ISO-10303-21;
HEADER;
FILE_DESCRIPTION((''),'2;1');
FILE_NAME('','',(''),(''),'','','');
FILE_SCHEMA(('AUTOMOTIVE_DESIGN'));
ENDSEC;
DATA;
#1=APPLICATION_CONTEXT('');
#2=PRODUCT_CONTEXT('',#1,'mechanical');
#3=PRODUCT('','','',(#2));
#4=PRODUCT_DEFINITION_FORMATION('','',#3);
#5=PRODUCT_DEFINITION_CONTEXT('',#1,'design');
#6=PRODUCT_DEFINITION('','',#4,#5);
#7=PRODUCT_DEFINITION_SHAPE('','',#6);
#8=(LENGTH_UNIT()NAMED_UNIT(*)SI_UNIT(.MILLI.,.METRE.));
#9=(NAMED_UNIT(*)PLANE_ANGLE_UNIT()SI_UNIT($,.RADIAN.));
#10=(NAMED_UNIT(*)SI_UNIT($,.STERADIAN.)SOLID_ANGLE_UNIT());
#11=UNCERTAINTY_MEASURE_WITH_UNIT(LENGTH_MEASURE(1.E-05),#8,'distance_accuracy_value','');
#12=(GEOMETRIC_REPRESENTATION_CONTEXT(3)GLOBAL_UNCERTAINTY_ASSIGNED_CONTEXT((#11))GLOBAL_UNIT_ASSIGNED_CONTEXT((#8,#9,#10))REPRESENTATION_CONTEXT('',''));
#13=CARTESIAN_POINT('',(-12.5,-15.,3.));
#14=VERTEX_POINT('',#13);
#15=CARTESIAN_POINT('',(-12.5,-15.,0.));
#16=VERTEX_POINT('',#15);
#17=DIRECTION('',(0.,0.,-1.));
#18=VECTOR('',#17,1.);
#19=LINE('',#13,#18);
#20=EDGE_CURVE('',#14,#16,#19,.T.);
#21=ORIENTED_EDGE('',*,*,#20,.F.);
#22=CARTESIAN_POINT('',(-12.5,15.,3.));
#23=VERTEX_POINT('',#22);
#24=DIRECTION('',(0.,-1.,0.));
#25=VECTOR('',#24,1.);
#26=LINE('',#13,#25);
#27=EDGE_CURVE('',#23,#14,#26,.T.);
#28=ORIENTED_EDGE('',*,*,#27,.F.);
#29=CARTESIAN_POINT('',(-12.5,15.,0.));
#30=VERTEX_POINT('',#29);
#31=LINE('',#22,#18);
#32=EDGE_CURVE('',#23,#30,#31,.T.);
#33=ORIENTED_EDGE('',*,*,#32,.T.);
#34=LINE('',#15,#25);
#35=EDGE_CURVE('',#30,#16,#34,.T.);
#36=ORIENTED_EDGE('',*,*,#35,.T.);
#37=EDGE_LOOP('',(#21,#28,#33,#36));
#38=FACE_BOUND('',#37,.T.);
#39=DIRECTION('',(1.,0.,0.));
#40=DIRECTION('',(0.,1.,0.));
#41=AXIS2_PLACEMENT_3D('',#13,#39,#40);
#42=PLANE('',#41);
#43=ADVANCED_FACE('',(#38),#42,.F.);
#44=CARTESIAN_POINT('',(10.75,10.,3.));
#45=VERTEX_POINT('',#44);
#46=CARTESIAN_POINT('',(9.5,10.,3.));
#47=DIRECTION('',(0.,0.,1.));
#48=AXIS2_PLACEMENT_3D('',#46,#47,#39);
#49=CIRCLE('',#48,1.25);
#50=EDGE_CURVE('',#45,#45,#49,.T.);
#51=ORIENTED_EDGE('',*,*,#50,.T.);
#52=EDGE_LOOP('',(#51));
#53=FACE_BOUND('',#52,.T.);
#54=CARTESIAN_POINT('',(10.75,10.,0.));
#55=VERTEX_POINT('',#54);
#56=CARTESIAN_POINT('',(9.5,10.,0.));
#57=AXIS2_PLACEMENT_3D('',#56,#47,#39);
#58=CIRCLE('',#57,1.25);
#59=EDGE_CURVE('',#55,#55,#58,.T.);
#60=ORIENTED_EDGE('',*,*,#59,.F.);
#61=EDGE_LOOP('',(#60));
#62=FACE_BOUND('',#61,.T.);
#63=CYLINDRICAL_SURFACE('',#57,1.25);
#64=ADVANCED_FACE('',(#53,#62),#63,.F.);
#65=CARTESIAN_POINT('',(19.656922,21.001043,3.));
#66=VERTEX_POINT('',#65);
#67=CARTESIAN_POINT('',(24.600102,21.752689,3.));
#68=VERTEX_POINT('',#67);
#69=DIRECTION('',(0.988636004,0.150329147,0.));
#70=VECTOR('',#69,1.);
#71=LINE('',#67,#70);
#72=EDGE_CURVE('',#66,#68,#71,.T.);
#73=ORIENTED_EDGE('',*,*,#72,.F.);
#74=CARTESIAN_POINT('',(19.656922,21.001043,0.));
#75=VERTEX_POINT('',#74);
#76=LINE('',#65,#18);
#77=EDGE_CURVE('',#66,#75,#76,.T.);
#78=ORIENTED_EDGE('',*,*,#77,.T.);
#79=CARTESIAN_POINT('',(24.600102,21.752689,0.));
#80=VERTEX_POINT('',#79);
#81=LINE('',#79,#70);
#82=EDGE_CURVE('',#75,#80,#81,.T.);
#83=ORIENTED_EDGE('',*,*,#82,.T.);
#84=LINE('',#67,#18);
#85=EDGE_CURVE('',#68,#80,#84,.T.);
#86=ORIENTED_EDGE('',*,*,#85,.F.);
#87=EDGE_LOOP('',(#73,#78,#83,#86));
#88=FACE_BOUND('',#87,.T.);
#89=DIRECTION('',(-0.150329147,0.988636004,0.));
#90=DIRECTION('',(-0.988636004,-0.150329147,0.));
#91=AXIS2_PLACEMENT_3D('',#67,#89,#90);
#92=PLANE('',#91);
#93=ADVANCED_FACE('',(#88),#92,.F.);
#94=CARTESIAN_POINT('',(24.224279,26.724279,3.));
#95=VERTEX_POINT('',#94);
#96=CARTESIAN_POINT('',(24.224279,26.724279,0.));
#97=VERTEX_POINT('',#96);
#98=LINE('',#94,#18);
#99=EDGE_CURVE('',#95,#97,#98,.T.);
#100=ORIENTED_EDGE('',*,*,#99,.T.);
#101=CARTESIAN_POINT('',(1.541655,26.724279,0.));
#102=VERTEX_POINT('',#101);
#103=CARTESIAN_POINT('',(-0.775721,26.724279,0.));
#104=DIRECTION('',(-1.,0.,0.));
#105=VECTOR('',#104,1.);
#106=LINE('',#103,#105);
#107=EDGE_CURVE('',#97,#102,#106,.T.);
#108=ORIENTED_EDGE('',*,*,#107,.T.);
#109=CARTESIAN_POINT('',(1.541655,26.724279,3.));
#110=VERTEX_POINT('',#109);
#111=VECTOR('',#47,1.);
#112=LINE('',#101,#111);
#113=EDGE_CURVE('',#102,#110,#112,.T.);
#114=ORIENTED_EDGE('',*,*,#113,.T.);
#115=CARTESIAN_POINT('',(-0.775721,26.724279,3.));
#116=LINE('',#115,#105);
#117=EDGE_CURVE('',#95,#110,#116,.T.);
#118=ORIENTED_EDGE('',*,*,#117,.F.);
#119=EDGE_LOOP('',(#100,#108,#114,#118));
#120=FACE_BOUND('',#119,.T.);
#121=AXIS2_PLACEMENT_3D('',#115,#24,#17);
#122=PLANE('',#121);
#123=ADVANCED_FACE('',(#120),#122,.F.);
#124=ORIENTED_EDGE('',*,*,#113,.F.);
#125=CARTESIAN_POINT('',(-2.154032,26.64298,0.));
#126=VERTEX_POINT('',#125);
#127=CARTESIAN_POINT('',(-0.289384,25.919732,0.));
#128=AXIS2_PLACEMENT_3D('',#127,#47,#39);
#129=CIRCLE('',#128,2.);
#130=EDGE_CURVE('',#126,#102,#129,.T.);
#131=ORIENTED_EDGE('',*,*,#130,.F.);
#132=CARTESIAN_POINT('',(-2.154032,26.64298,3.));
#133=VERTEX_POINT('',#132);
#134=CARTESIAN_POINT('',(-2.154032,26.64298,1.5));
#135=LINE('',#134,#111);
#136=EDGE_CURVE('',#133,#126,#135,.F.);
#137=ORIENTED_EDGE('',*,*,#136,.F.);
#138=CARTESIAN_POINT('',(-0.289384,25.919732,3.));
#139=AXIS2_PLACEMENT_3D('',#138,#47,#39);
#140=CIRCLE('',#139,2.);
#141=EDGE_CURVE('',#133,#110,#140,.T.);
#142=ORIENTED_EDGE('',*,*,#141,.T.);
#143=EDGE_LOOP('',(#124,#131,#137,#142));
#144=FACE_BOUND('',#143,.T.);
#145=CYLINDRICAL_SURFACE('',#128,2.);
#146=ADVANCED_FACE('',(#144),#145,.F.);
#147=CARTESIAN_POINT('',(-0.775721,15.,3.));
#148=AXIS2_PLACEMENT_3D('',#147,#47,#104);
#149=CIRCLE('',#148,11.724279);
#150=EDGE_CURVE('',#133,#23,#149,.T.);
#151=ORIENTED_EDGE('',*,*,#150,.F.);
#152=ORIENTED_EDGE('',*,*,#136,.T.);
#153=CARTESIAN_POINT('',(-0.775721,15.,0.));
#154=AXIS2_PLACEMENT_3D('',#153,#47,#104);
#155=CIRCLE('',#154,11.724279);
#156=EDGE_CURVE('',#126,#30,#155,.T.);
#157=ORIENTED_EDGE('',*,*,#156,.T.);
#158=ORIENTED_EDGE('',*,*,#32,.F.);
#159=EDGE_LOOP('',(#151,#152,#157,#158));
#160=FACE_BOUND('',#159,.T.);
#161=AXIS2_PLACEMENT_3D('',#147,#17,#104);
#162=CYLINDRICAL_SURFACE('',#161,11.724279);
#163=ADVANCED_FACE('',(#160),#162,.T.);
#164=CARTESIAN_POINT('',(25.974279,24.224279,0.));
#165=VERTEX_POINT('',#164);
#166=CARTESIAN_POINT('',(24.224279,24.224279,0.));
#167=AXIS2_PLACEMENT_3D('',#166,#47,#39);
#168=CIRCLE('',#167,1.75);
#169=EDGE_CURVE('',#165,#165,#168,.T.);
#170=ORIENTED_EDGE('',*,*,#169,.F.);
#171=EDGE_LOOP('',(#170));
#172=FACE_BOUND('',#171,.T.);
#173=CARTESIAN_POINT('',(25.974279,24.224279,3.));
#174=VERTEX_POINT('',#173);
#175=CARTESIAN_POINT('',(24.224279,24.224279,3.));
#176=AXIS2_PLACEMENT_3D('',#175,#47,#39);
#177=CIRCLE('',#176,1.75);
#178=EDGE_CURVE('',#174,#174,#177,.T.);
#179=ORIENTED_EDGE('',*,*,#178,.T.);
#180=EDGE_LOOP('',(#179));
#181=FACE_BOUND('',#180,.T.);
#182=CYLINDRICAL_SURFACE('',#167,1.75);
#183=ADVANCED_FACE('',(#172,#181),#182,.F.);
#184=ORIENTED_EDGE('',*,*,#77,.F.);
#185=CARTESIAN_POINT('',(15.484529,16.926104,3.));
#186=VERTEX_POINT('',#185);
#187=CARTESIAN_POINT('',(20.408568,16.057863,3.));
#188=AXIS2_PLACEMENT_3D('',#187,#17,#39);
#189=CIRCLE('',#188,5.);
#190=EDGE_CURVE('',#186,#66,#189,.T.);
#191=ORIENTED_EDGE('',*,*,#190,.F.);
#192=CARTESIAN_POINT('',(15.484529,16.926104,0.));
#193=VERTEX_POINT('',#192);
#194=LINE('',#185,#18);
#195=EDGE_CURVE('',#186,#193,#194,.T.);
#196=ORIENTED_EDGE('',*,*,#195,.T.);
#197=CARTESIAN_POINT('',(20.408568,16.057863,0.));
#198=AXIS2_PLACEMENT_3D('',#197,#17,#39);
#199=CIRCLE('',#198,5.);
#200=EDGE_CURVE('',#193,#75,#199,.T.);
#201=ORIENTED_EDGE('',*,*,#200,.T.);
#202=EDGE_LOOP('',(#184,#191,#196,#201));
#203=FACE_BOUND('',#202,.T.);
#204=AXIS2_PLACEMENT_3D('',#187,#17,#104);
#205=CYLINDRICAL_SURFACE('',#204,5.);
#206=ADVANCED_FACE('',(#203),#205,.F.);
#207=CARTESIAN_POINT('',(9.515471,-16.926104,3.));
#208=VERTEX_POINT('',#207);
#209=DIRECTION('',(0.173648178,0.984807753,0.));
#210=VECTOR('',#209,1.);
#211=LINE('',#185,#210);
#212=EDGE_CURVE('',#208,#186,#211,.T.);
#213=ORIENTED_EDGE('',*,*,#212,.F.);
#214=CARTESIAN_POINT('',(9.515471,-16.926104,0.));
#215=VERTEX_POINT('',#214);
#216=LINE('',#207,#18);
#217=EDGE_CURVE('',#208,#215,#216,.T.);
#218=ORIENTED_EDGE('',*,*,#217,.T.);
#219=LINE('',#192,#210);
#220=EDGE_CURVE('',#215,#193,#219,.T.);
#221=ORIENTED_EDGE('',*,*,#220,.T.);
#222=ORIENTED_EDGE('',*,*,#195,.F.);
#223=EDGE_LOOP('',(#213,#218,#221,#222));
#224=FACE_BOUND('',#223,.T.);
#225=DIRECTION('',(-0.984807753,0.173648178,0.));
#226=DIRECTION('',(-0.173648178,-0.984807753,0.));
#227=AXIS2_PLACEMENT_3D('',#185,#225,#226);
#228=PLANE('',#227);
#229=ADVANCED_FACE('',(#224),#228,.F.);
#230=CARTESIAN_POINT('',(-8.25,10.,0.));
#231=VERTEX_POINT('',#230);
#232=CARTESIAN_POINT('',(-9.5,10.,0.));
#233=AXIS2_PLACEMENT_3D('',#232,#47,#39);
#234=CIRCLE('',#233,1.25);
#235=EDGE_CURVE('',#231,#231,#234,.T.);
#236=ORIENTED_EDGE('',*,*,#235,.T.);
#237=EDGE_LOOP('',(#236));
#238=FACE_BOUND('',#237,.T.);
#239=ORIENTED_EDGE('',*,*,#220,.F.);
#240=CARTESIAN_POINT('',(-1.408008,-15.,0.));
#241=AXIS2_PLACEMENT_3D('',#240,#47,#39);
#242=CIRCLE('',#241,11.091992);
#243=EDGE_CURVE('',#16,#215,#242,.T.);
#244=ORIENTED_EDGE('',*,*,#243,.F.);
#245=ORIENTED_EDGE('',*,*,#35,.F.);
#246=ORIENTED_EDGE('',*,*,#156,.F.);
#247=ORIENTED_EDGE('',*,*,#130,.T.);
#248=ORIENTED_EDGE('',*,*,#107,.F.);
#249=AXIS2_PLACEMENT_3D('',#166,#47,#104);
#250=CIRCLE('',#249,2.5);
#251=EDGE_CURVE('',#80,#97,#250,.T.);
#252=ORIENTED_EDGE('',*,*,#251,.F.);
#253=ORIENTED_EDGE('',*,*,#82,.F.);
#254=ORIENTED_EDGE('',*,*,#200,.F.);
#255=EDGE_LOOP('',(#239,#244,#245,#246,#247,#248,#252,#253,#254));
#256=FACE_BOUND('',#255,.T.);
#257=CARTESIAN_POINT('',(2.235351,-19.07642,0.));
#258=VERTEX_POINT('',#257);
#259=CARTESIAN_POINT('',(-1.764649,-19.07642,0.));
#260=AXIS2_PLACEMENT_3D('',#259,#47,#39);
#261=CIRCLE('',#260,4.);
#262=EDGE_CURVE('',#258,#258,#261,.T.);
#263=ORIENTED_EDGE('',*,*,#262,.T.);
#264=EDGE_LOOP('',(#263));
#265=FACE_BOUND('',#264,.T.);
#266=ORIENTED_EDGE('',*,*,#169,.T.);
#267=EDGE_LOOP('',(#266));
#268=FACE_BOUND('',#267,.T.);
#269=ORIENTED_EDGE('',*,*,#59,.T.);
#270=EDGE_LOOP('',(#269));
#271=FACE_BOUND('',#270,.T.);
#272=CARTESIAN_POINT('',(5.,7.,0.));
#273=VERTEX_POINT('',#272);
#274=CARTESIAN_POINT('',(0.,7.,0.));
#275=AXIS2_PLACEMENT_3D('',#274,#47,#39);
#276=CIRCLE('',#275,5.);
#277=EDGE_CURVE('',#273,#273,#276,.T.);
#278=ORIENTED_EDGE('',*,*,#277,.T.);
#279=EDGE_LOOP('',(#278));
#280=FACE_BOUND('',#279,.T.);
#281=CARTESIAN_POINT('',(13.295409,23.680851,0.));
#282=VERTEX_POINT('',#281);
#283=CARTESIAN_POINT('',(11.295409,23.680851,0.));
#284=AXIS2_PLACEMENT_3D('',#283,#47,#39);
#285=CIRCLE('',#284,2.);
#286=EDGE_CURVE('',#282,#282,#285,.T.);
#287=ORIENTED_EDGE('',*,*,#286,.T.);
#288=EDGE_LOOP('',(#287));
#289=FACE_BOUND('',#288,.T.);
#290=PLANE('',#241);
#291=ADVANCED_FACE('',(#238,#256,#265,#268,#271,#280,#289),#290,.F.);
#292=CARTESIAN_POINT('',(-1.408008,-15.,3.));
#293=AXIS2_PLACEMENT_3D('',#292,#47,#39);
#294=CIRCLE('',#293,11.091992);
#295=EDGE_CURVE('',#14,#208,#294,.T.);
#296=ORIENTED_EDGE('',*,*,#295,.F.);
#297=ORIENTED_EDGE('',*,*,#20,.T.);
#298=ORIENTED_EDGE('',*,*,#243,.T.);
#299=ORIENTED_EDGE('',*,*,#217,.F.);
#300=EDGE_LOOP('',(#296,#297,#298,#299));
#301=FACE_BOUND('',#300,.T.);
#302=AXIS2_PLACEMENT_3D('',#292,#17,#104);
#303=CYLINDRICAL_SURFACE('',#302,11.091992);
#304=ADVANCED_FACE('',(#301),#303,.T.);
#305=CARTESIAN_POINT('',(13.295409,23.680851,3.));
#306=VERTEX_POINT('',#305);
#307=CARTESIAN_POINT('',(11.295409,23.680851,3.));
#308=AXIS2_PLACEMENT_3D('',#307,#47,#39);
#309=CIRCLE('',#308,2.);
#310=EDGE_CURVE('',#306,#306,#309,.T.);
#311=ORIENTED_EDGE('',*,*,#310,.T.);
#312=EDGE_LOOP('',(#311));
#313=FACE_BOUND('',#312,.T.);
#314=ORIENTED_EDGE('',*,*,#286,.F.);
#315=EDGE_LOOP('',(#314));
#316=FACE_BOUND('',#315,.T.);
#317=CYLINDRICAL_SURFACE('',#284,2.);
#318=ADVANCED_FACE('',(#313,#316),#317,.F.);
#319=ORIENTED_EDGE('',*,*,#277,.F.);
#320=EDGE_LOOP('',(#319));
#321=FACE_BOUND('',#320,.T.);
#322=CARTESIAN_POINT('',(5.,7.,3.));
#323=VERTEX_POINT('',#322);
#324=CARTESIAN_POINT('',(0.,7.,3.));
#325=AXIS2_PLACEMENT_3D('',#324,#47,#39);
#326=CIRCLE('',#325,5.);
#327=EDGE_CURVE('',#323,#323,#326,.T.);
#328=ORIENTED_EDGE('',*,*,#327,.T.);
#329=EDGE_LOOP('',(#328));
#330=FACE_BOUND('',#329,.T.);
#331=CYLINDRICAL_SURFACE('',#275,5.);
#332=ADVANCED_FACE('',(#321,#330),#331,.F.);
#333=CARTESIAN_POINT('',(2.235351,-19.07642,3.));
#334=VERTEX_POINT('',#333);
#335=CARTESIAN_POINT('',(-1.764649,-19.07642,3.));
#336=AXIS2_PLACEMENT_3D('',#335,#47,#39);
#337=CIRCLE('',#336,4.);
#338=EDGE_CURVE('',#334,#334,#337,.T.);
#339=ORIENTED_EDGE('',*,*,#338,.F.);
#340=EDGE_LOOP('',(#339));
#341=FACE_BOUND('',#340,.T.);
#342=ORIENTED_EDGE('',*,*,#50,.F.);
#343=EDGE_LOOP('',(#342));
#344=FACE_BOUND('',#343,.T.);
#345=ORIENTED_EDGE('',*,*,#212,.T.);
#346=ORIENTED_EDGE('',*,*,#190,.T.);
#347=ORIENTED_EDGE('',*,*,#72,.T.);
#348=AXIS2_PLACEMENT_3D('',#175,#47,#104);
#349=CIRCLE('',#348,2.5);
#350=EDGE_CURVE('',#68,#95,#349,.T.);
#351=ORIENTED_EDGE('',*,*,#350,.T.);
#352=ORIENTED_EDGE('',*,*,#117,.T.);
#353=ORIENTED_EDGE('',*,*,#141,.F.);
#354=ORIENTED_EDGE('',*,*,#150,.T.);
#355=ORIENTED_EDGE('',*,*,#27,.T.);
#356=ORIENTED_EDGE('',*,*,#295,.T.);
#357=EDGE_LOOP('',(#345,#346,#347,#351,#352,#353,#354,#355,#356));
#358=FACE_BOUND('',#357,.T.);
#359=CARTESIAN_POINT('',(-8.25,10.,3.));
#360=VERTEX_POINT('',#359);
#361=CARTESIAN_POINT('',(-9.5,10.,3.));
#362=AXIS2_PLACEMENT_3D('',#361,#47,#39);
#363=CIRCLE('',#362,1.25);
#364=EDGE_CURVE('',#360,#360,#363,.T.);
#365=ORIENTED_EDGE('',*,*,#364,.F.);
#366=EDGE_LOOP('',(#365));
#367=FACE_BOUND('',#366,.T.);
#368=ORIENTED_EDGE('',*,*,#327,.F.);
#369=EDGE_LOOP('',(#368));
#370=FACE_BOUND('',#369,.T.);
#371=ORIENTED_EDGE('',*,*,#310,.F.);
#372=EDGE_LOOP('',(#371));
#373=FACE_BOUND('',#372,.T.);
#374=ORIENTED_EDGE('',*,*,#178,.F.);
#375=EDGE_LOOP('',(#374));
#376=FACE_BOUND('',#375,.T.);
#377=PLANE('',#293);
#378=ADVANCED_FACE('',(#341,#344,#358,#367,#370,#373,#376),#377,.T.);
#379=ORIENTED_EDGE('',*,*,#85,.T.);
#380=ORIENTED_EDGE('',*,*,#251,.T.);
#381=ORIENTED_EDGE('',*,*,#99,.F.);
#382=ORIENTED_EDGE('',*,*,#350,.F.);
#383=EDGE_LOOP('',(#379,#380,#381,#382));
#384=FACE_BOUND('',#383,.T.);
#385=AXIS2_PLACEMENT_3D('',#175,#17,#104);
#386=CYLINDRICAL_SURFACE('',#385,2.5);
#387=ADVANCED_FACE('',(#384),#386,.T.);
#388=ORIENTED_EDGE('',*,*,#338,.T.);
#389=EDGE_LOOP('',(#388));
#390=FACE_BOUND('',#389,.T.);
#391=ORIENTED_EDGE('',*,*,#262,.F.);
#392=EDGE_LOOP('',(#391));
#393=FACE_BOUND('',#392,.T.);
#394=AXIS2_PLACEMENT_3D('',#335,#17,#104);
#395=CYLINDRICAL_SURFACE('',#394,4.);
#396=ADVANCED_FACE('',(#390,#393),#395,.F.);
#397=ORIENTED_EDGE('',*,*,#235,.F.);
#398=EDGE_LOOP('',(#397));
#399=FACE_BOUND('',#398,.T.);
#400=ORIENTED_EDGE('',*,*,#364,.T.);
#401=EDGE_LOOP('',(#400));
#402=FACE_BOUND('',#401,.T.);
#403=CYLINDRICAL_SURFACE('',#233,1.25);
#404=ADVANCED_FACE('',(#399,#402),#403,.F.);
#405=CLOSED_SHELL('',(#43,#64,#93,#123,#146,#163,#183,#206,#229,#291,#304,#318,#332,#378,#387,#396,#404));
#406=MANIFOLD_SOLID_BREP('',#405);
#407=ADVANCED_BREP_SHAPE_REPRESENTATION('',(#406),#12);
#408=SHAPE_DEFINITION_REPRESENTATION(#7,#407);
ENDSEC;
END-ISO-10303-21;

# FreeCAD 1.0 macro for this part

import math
import FreeCAD as App
import Part
import Sketcher

V = App.Vector
Q = App.Units.Quantity

doc = App.newDocument("Part")
params = doc.addObject("Spreadsheet::Sheet", "Params")
for row, (alias, value) in enumerate([
    ("sketch1_diameter", "8 mm"),
    ("sketch1_radius", "5 mm"),
    ("sketch1_radius2", "2.5 mm"),
    ("sketch1_width", "25 mm"),
    ("sketch1_height", "30 mm"),
    ("pad1_length", "3 mm"),
    ("sketch2_diameter", "10 mm"),
    ("sketch2_diameter2", "2.5 mm"),
    ("sketch3_diameter", "3.5 mm"),
    ("sketch4_diameter", "4 mm"),
], start=1):
    params.set(f"A{row}", alias)
    params.set(f"B{row}", "=" + value)
    params.setAlias(f"B{row}", alias)

body = doc.addObject("PartDesign::Body", "Body")

sketch1 = doc.addObject("Sketcher::SketchObject", "Sketch")
body.addObject(sketch1)
sketch1.AttachmentSupport = (doc.XY_Plane, [""])
sketch1.MapMode = "FlatFace"
sketch1.addGeometry([
    Part.LineSegment(V(-12.5, 15, 0), V(-12.5, -15, 0)),
    Part.ArcOfCircle(Part.Circle(V(-1.408008, -15, 0), V(0, 0, 1), 11.091992), math.radians(180), math.radians(350)),
    Part.LineSegment(V(9.515471, -16.926104, 0), V(15.484529, 16.926104, 0)),
    Part.ArcOfCircle(Part.Circle(V(20.408568, 16.057863, 0), V(0, 0, 1), 5), math.radians(98.646002), math.radians(170)),
    Part.LineSegment(V(19.656922, 21.001043, 0), V(24.600102, 21.752689, 0)),
    Part.ArcOfCircle(Part.Circle(V(24.224279, 24.224279, 0), V(0, 0, 1), 2.5), math.radians(-81.353998), math.radians(90)),
    Part.LineSegment(V(24.224279, 26.724279, 0), V(-0.775721, 26.724279, 0)),
    Part.ArcOfCircle(Part.Circle(V(-0.775721, 15, 0), V(0, 0, 1), 11.724279), math.radians(90), math.radians(180)),
    Part.Circle(V(-1.764649, -19.07642, 0), V(0, 0, 1), 4),
], False)
sketch1.addConstraint([
    Sketcher.Constraint("Tangent", 0, 2, 1, 1),
    Sketcher.Constraint("Tangent", 1, 2, 2, 1),
    Sketcher.Constraint("Tangent", 2, 2, 3, 2),
    Sketcher.Constraint("Tangent", 3, 1, 4, 1),
    Sketcher.Constraint("Tangent", 4, 2, 5, 1),
    Sketcher.Constraint("Tangent", 5, 2, 6, 1),
    Sketcher.Constraint("Tangent", 6, 2, 7, 1),
    Sketcher.Constraint("Tangent", 7, 2, 0, 1),
    Sketcher.Constraint("Vertical", 0),
    Sketcher.Constraint("Horizontal", 6),
    Sketcher.Constraint("Diameter", 8, 8.0),
    Sketcher.Constraint("Radius", 3, 5.0),
    Sketcher.Constraint("Radius", 5, 2.5),
    Sketcher.Constraint("DistanceX", 6, 2, 6, 1, 25.0),
    Sketcher.Constraint("DistanceY", 0, 2, 0, 1, 30.0),
    Sketcher.Constraint("Angle", 2, Q("80 deg")),
    Sketcher.Constraint("Distance", 4, 5.0),
    Sketcher.Constraint("DistanceY", 1, 3, -1, 1, 15.0),
    Sketcher.Constraint("DistanceX", 0, 2, -1, 1, 12.5),
    Sketcher.Constraint("Radius", 1, 11.091992),
    Sketcher.Constraint("Radius", 7, 11.724279),
    Sketcher.Constraint("DistanceY", 8, 3, 5, 3, 43.300699),
    Sketcher.Constraint("DistanceX", 8, 3, -1, 1, 1.764649),
])
sketch1.setExpression("Constraints[10]", "Params.sketch1_diameter")
sketch1.setExpression("Constraints[11]", "Params.sketch1_radius")
sketch1.setExpression("Constraints[12]", "Params.sketch1_radius2")
sketch1.setExpression("Constraints[13]", "Params.sketch1_width")
sketch1.setExpression("Constraints[14]", "Params.sketch1_height")
pad1 = doc.addObject("PartDesign::Pad", "Pad")
body.addObject(pad1)
pad1.Profile = sketch1
pad1.setExpression("Length", "Params.pad1_length")

sketch2 = doc.addObject("Sketcher::SketchObject", "Sketch001")
body.addObject(sketch2)
sketch2.AttachmentSupport = (doc.XY_Plane, [""])
sketch2.MapMode = "FlatFace"
sketch2.AttachmentOffset = App.Placement(V(0, 0, 3), App.Rotation())
sketch2.addGeometry([
    Part.Circle(V(-9.5, 10, 0), V(0, 0, 1), 1.25),
    Part.Circle(V(9.5, 10, 0), V(0, 0, 1), 1.25),
    Part.Circle(V(0, 7, 0), V(0, 0, 1), 5),
], False)
sketch2.addConstraint([
    Sketcher.Constraint("Equal", 0, 1),
    Sketcher.Constraint("Symmetric", 0, 3, 1, 3, -2),
    Sketcher.Constraint("PointOnObject", 2, 3, -2),
    Sketcher.Constraint("Diameter", 2, 10.0),
    Sketcher.Constraint("Diameter", 0, 2.5),
    Sketcher.Constraint("DistanceY", -1, 1, 0, 3, 10.0),
    Sketcher.Constraint("DistanceY", -1, 1, 2, 3, 7.0),
    Sketcher.Constraint("DistanceX", 0, 3, 1, 3, 19.0),
])
sketch2.setExpression("Constraints[3]", "Params.sketch2_diameter")
sketch2.setExpression("Constraints[4]", "Params.sketch2_diameter2")
pocket1 = doc.addObject("PartDesign::Pocket", "Pocket")
body.addObject(pocket1)
pocket1.Profile = sketch2
pocket1.Type = "ThroughAll"

sketch3 = doc.addObject("Sketcher::SketchObject", "Sketch002")
body.addObject(sketch3)
sketch3.AttachmentSupport = (doc.XY_Plane, [""])
sketch3.MapMode = "FlatFace"
sketch3.AttachmentOffset = App.Placement(V(0, 0, 3), App.Rotation())
sketch3.addGeometry(Part.Circle(V(24.224279, 24.224279, 0), V(0, 0, 1), 1.75), False)
sketch3.addConstraint([
    Sketcher.Constraint("Diameter", 0, 3.5),
    Sketcher.Constraint("DistanceX", -1, 1, 0, 3, 24.224279),
    Sketcher.Constraint("DistanceY", -1, 1, 0, 3, 24.224279),
])
sketch3.setExpression("Constraints[0]", "Params.sketch3_diameter")
pocket2 = doc.addObject("PartDesign::Pocket", "Pocket001")
body.addObject(pocket2)
pocket2.Profile = sketch3
pocket2.Type = "ThroughAll"

sketch4 = doc.addObject("Sketcher::SketchObject", "Sketch003")
body.addObject(sketch4)
sketch4.AttachmentSupport = (doc.XY_Plane, [""])
sketch4.MapMode = "FlatFace"
sketch4.AttachmentOffset = App.Placement(V(0, 0, 3), App.Rotation())
sketch4.addGeometry([
    Part.Circle(V(11.295409, 23.680851, 0), V(0, 0, 1), 2),
    Part.Circle(V(-0.289384, 25.919732, 0), V(0, 0, 1), 2),
], False)
sketch4.addConstraint([
    Sketcher.Constraint("Equal", 0, 1),
    Sketcher.Constraint("Diameter", 0, 4.0),
    Sketcher.Constraint("DistanceX", -1, 1, 0, 3, 11.295409),
    Sketcher.Constraint("DistanceY", -1, 1, 0, 3, 23.680851),
    Sketcher.Constraint("DistanceY", -1, 1, 1, 3, 25.919732),
    Sketcher.Constraint("DistanceX", 1, 3, -1, 1, 0.289384),
])
sketch4.setExpression("Constraints[1]", "Params.sketch4_diameter")
pocket3 = doc.addObject("PartDesign::Pocket", "Pocket002")
body.addObject(pocket3)
pocket3.Profile = sketch4
pocket3.Type = "ThroughAll"

doc.recompute()
